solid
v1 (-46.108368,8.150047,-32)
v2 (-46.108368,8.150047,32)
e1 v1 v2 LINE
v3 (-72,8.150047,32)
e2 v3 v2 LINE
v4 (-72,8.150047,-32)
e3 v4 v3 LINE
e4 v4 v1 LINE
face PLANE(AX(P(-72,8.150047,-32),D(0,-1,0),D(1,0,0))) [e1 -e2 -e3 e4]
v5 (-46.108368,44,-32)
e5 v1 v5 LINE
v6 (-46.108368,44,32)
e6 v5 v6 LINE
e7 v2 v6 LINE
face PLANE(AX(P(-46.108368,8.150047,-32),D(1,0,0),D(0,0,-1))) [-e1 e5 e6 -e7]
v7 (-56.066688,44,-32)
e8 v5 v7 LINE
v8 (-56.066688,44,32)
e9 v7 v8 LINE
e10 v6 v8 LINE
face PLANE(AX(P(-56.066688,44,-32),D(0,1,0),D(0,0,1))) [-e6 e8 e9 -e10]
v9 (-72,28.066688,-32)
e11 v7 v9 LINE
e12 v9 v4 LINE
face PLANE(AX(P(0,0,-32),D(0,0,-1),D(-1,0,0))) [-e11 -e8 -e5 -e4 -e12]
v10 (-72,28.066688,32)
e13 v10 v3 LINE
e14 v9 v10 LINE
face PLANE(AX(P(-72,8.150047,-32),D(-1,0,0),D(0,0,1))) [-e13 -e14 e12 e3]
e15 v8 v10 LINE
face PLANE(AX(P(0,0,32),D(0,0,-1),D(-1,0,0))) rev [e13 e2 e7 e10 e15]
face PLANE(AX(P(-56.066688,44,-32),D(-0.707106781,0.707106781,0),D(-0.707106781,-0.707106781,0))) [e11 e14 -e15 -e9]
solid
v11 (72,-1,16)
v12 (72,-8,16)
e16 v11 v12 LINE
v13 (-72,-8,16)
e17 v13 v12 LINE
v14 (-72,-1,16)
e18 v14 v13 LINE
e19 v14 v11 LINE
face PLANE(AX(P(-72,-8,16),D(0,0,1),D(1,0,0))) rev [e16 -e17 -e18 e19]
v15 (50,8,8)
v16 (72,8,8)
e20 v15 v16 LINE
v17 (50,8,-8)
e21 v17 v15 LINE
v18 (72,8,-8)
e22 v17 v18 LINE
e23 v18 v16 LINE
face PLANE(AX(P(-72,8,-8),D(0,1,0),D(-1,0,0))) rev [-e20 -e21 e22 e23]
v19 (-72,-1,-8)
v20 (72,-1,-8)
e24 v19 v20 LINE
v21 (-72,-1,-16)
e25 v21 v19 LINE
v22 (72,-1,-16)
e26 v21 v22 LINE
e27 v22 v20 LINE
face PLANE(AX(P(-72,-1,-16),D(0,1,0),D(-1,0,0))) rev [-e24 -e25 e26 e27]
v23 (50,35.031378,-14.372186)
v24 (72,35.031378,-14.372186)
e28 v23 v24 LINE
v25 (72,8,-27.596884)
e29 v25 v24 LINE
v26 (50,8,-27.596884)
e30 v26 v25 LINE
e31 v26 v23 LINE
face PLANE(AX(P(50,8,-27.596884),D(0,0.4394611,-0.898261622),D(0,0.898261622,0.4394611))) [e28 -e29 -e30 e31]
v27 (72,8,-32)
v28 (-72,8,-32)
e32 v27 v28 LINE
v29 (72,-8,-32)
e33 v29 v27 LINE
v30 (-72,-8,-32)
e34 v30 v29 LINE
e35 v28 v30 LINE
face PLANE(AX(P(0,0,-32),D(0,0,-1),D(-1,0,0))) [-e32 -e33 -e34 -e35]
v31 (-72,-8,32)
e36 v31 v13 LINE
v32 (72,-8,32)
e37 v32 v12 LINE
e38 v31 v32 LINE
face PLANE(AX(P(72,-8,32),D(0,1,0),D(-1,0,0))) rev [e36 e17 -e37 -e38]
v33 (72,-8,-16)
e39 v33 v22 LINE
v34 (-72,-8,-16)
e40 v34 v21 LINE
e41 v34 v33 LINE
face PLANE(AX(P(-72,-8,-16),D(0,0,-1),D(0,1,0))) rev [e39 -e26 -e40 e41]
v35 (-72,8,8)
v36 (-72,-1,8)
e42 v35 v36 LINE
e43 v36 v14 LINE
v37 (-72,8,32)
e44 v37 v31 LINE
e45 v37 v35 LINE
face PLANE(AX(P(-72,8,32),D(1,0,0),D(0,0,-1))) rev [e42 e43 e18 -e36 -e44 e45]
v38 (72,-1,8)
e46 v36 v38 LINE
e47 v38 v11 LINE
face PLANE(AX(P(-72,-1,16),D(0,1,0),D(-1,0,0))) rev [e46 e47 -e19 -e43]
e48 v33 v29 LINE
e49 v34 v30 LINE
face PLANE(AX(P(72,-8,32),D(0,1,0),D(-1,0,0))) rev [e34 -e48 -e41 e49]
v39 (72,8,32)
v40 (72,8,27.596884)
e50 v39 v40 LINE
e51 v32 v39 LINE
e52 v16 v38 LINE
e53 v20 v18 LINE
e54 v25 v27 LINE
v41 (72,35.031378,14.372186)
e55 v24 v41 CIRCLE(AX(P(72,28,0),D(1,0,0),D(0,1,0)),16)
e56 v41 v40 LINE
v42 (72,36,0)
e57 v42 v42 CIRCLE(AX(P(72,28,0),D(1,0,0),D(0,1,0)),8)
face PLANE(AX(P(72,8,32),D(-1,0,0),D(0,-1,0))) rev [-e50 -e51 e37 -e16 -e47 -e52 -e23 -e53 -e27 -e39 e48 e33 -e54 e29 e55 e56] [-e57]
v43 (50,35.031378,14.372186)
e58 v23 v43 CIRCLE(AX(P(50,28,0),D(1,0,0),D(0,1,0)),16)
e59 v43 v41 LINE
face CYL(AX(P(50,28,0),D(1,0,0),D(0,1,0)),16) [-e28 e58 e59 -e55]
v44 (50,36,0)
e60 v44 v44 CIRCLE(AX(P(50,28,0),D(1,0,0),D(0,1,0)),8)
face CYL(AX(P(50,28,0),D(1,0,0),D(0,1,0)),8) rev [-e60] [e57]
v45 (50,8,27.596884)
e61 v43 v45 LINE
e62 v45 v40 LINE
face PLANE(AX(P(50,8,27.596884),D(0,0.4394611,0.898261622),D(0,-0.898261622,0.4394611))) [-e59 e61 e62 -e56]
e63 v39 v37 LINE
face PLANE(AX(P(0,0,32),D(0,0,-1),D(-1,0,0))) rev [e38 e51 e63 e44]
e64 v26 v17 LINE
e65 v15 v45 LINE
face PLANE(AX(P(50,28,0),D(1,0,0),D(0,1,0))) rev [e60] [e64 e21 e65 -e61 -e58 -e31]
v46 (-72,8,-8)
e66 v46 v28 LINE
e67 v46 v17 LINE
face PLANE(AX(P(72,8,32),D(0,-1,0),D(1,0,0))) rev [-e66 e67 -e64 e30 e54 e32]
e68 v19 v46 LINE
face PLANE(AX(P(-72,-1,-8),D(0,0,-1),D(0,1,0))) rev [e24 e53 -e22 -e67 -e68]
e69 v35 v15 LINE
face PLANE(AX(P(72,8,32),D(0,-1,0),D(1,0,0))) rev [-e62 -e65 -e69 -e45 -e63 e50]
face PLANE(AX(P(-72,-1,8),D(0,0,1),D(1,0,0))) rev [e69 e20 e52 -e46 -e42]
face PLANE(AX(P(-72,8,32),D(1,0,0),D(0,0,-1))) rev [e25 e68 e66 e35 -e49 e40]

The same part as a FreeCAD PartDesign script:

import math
import FreeCAD as App
import Part
import Sketcher
from FreeCAD import Vector
Q = App.Units.Quantity


def add_polygon(sketch, points):
    """Adds a closed chain of lines whose ends are joined by coincident constraints."""
    first, n = sketch.GeometryCount, len(points)
    for a, b in zip(points, points[1:] + points[:1]):
        sketch.addGeometry(Part.LineSegment(App.Vector(*a, 0), App.Vector(*b, 0)), False)
    for i in range(n):
        sketch.addConstraint(Sketcher.Constraint("Coincident", first + i, 2, first + (i + 1) % n, 1))

doc = App.newDocument("Part")
body = doc.addObject("PartDesign::Body", "Body")

# Sketch on XY plane
sketch1 = body.newObject("Sketcher::SketchObject", "Sketch")
sketch1.AttachmentSupport = (doc.getObject("XY_Plane"), [""])
sketch1.MapMode = "FlatFace"
add_polygon(sketch1, [(-72, 8), (-72, -8), (72, -8), (72, 8)])  # lines 0-3
sketch1.addConstraint([
    Sketcher.Constraint("Vertical", 0),
    Sketcher.Constraint("Horizontal", 1),
    Sketcher.Constraint("Vertical", 2),
    Sketcher.Constraint("Horizontal", 3),
    Sketcher.Constraint("Symmetric", 0, 2, 2, 2, -1, 1),
    Sketcher.Constraint("DistanceX", 1, 1, 1, 2, Q("144 mm")),
    Sketcher.Constraint("DistanceY", 0, 2, 0, 1, Q("16 mm")),
])
pad1 = body.newObject("PartDesign::Pad", "Pad")
pad1.Profile = sketch1
pad1.Length = 64
pad1.Midplane = True

# Sketch on YZ plane
sketch2 = body.newObject("Sketcher::SketchObject", "Sketch001")
sketch2.AttachmentSupport = (doc.getObject("YZ_Plane"), [""])
sketch2.MapMode = "FlatFace"
sketch2.AttachmentOffset = App.Placement(Vector(0, 0, 72), App.Rotation())
sketch2.addGeometry([
    Part.LineSegment(Vector(8, 27.596884, 0), Vector(8, 32, 0)),  # 0
    Part.LineSegment(Vector(8, 32, 0), Vector(-8, 32, 0)),  # 1
    Part.LineSegment(Vector(-8, 32, 0), Vector(-8, -32, 0)),  # 2
    Part.LineSegment(Vector(-8, -32, 0), Vector(8, -32, 0)),  # 3
    Part.LineSegment(Vector(8, -32, 0), Vector(8, -27.596884, 0)),  # 4
    Part.LineSegment(Vector(8, -27.596884, 0), Vector(35.031378, -14.372186, 0)),  # 5
    Part.ArcOfCircle(Part.Circle(Vector(28, 0, 0), Vector(0, 0, 1), 16), math.radians(-63.930498), math.radians(63.930498)),  # 6
    Part.LineSegment(Vector(35.031378, 14.372186, 0), Vector(8, 27.596884, 0)),  # 7
    Part.Circle(Vector(28, 0, 0), Vector(0, 0, 1), 8),  # 8
], False)
sketch2.addConstraint([
    Sketcher.Constraint("Coincident", 0, 2, 1, 1),
    Sketcher.Constraint("Coincident", 1, 2, 2, 1),
    Sketcher.Constraint("Coincident", 2, 2, 3, 1),
    Sketcher.Constraint("Coincident", 3, 2, 4, 1),
    Sketcher.Constraint("Coincident", 4, 2, 5, 1),
    Sketcher.Constraint("Tangent", 5, 2, 6, 1),
    Sketcher.Constraint("Tangent", 6, 2, 7, 1),
    Sketcher.Constraint("Coincident", 7, 2, 0, 1),
    Sketcher.Constraint("Vertical", 0),
    Sketcher.Constraint("Horizontal", 1),
    Sketcher.Constraint("Vertical", 2),
    Sketcher.Constraint("Horizontal", 3),
    Sketcher.Constraint("Vertical", 4),
    Sketcher.Constraint("Coincident", 8, 3, 6, 3),
    Sketcher.Constraint("Symmetric", 0, 2, 2, 2, -1, 1),
    Sketcher.Constraint("Symmetric", 5, 2, 6, 2, -1),
    Sketcher.Constraint("Vertical", 0, 2, 3, 2),
    Sketcher.Constraint("Diameter", 8, Q("16 mm")),
    Sketcher.Constraint("Radius", 6, Q("16 mm")),
    Sketcher.Constraint("DistanceX", 1, 2, 1, 1, Q("16 mm")),
    Sketcher.Constraint("DistanceY", 2, 2, 2, 1, Q("64 mm")),
    Sketcher.Constraint("DistanceX", -1, 1, 6, 3, Q("28 mm")),
    Sketcher.Constraint("DistanceY", 4, 2, 5, 2, Q("13.224698 mm")),
])
pad2 = body.newObject("PartDesign::Pad", "Pad001")
pad2.Profile = sketch2
pad2.Length = 22
pad2.Reversed = True

# Sketch on YZ plane
sketch3 = body.newObject("Sketcher::SketchObject", "Sketch002")
sketch3.AttachmentSupport = (doc.getObject("YZ_Plane"), [""])
sketch3.MapMode = "FlatFace"
sketch3.AttachmentOffset = App.Placement(Vector(0, 0, 72), App.Rotation())
add_polygon(sketch3, [(8, -8), (8, 8), (-1, 8), (-1, 16), (-8, 16), (-8, -16), (-1, -16), (-1, -8)])  # lines 0-7
sketch3.addConstraint([
    Sketcher.Constraint("Vertical", 0),
    Sketcher.Constraint("Horizontal", 1),
    Sketcher.Constraint("Vertical", 2),
    Sketcher.Constraint("Horizontal", 3),
    Sketcher.Constraint("Vertical", 4),
    Sketcher.Constraint("Horizontal", 5),
    Sketcher.Constraint("Vertical", 6),
    Sketcher.Constraint("Horizontal", 7),
    Sketcher.Constraint("Symmetric", 2, 2, 5, 2, -1),
    Sketcher.Constraint("Equal", 2, 6),
    Sketcher.Constraint("DistanceX", 1, 2, 1, 1, Q("9 mm")),
    Sketcher.Constraint("DistanceX", 3, 2, 3, 1, Q("7 mm")),
    Sketcher.Constraint("DistanceY", 0, 1, 0, 2, Q("16 mm")),
    Sketcher.Constraint("DistanceY", 2, 1, 2, 2, Q("8 mm")),
    Sketcher.Constraint("DistanceX", -1, 1, 0, 2, Q("8 mm")),
])
pocket1 = body.newObject("PartDesign::Pocket", "Pocket")
pocket1.Profile = sketch3
pocket1.Type = "ThroughAll"
body2 = doc.addObject("PartDesign::Body", "Body001")

# Sketch on XY plane
sketch4 = body2.newObject("Sketcher::SketchObject", "Sketch003")
sketch4.AttachmentSupport = (doc.getObject("XY_Plane001"), [""])
sketch4.MapMode = "FlatFace"
sketch4.AttachmentOffset = App.Placement(Vector(0, 0, 32), App.Rotation())
add_polygon(sketch4, [(-72, 8.150047), (-46.108368, 8.150047), (-46.108368, 44), (-56.066688, 44), (-72, 28.066688)])  # lines 0-4
sketch4.addConstraint([
    Sketcher.Constraint("Horizontal", 0),
    Sketcher.Constraint("Vertical", 1),
    Sketcher.Constraint("Horizontal", 2),
    Sketcher.Constraint("Vertical", 4),
    Sketcher.Constraint("Angle", 3, Q("-135 deg")),
    Sketcher.Constraint("DistanceY", -1, 1, 1, 2, Q("44 mm")),
    Sketcher.Constraint("DistanceX", 3, 2, -1, 1, Q("72 mm")),
    Sketcher.Constraint("DistanceX", 2, 2, 2, 1, Q("9.95832 mm")),
    Sketcher.Constraint("DistanceY", 4, 2, 4, 1, Q("19.91664 mm")),
    Sketcher.Constraint("DistanceX", 0, 1, 0, 2, Q("25.891632 mm")),
])
pad3 = body2.newObject("PartDesign::Pad", "Pad002")
pad3.Profile = sketch4
pad3.Length = 64
pad3.Reversed = True

doc.recompute()
